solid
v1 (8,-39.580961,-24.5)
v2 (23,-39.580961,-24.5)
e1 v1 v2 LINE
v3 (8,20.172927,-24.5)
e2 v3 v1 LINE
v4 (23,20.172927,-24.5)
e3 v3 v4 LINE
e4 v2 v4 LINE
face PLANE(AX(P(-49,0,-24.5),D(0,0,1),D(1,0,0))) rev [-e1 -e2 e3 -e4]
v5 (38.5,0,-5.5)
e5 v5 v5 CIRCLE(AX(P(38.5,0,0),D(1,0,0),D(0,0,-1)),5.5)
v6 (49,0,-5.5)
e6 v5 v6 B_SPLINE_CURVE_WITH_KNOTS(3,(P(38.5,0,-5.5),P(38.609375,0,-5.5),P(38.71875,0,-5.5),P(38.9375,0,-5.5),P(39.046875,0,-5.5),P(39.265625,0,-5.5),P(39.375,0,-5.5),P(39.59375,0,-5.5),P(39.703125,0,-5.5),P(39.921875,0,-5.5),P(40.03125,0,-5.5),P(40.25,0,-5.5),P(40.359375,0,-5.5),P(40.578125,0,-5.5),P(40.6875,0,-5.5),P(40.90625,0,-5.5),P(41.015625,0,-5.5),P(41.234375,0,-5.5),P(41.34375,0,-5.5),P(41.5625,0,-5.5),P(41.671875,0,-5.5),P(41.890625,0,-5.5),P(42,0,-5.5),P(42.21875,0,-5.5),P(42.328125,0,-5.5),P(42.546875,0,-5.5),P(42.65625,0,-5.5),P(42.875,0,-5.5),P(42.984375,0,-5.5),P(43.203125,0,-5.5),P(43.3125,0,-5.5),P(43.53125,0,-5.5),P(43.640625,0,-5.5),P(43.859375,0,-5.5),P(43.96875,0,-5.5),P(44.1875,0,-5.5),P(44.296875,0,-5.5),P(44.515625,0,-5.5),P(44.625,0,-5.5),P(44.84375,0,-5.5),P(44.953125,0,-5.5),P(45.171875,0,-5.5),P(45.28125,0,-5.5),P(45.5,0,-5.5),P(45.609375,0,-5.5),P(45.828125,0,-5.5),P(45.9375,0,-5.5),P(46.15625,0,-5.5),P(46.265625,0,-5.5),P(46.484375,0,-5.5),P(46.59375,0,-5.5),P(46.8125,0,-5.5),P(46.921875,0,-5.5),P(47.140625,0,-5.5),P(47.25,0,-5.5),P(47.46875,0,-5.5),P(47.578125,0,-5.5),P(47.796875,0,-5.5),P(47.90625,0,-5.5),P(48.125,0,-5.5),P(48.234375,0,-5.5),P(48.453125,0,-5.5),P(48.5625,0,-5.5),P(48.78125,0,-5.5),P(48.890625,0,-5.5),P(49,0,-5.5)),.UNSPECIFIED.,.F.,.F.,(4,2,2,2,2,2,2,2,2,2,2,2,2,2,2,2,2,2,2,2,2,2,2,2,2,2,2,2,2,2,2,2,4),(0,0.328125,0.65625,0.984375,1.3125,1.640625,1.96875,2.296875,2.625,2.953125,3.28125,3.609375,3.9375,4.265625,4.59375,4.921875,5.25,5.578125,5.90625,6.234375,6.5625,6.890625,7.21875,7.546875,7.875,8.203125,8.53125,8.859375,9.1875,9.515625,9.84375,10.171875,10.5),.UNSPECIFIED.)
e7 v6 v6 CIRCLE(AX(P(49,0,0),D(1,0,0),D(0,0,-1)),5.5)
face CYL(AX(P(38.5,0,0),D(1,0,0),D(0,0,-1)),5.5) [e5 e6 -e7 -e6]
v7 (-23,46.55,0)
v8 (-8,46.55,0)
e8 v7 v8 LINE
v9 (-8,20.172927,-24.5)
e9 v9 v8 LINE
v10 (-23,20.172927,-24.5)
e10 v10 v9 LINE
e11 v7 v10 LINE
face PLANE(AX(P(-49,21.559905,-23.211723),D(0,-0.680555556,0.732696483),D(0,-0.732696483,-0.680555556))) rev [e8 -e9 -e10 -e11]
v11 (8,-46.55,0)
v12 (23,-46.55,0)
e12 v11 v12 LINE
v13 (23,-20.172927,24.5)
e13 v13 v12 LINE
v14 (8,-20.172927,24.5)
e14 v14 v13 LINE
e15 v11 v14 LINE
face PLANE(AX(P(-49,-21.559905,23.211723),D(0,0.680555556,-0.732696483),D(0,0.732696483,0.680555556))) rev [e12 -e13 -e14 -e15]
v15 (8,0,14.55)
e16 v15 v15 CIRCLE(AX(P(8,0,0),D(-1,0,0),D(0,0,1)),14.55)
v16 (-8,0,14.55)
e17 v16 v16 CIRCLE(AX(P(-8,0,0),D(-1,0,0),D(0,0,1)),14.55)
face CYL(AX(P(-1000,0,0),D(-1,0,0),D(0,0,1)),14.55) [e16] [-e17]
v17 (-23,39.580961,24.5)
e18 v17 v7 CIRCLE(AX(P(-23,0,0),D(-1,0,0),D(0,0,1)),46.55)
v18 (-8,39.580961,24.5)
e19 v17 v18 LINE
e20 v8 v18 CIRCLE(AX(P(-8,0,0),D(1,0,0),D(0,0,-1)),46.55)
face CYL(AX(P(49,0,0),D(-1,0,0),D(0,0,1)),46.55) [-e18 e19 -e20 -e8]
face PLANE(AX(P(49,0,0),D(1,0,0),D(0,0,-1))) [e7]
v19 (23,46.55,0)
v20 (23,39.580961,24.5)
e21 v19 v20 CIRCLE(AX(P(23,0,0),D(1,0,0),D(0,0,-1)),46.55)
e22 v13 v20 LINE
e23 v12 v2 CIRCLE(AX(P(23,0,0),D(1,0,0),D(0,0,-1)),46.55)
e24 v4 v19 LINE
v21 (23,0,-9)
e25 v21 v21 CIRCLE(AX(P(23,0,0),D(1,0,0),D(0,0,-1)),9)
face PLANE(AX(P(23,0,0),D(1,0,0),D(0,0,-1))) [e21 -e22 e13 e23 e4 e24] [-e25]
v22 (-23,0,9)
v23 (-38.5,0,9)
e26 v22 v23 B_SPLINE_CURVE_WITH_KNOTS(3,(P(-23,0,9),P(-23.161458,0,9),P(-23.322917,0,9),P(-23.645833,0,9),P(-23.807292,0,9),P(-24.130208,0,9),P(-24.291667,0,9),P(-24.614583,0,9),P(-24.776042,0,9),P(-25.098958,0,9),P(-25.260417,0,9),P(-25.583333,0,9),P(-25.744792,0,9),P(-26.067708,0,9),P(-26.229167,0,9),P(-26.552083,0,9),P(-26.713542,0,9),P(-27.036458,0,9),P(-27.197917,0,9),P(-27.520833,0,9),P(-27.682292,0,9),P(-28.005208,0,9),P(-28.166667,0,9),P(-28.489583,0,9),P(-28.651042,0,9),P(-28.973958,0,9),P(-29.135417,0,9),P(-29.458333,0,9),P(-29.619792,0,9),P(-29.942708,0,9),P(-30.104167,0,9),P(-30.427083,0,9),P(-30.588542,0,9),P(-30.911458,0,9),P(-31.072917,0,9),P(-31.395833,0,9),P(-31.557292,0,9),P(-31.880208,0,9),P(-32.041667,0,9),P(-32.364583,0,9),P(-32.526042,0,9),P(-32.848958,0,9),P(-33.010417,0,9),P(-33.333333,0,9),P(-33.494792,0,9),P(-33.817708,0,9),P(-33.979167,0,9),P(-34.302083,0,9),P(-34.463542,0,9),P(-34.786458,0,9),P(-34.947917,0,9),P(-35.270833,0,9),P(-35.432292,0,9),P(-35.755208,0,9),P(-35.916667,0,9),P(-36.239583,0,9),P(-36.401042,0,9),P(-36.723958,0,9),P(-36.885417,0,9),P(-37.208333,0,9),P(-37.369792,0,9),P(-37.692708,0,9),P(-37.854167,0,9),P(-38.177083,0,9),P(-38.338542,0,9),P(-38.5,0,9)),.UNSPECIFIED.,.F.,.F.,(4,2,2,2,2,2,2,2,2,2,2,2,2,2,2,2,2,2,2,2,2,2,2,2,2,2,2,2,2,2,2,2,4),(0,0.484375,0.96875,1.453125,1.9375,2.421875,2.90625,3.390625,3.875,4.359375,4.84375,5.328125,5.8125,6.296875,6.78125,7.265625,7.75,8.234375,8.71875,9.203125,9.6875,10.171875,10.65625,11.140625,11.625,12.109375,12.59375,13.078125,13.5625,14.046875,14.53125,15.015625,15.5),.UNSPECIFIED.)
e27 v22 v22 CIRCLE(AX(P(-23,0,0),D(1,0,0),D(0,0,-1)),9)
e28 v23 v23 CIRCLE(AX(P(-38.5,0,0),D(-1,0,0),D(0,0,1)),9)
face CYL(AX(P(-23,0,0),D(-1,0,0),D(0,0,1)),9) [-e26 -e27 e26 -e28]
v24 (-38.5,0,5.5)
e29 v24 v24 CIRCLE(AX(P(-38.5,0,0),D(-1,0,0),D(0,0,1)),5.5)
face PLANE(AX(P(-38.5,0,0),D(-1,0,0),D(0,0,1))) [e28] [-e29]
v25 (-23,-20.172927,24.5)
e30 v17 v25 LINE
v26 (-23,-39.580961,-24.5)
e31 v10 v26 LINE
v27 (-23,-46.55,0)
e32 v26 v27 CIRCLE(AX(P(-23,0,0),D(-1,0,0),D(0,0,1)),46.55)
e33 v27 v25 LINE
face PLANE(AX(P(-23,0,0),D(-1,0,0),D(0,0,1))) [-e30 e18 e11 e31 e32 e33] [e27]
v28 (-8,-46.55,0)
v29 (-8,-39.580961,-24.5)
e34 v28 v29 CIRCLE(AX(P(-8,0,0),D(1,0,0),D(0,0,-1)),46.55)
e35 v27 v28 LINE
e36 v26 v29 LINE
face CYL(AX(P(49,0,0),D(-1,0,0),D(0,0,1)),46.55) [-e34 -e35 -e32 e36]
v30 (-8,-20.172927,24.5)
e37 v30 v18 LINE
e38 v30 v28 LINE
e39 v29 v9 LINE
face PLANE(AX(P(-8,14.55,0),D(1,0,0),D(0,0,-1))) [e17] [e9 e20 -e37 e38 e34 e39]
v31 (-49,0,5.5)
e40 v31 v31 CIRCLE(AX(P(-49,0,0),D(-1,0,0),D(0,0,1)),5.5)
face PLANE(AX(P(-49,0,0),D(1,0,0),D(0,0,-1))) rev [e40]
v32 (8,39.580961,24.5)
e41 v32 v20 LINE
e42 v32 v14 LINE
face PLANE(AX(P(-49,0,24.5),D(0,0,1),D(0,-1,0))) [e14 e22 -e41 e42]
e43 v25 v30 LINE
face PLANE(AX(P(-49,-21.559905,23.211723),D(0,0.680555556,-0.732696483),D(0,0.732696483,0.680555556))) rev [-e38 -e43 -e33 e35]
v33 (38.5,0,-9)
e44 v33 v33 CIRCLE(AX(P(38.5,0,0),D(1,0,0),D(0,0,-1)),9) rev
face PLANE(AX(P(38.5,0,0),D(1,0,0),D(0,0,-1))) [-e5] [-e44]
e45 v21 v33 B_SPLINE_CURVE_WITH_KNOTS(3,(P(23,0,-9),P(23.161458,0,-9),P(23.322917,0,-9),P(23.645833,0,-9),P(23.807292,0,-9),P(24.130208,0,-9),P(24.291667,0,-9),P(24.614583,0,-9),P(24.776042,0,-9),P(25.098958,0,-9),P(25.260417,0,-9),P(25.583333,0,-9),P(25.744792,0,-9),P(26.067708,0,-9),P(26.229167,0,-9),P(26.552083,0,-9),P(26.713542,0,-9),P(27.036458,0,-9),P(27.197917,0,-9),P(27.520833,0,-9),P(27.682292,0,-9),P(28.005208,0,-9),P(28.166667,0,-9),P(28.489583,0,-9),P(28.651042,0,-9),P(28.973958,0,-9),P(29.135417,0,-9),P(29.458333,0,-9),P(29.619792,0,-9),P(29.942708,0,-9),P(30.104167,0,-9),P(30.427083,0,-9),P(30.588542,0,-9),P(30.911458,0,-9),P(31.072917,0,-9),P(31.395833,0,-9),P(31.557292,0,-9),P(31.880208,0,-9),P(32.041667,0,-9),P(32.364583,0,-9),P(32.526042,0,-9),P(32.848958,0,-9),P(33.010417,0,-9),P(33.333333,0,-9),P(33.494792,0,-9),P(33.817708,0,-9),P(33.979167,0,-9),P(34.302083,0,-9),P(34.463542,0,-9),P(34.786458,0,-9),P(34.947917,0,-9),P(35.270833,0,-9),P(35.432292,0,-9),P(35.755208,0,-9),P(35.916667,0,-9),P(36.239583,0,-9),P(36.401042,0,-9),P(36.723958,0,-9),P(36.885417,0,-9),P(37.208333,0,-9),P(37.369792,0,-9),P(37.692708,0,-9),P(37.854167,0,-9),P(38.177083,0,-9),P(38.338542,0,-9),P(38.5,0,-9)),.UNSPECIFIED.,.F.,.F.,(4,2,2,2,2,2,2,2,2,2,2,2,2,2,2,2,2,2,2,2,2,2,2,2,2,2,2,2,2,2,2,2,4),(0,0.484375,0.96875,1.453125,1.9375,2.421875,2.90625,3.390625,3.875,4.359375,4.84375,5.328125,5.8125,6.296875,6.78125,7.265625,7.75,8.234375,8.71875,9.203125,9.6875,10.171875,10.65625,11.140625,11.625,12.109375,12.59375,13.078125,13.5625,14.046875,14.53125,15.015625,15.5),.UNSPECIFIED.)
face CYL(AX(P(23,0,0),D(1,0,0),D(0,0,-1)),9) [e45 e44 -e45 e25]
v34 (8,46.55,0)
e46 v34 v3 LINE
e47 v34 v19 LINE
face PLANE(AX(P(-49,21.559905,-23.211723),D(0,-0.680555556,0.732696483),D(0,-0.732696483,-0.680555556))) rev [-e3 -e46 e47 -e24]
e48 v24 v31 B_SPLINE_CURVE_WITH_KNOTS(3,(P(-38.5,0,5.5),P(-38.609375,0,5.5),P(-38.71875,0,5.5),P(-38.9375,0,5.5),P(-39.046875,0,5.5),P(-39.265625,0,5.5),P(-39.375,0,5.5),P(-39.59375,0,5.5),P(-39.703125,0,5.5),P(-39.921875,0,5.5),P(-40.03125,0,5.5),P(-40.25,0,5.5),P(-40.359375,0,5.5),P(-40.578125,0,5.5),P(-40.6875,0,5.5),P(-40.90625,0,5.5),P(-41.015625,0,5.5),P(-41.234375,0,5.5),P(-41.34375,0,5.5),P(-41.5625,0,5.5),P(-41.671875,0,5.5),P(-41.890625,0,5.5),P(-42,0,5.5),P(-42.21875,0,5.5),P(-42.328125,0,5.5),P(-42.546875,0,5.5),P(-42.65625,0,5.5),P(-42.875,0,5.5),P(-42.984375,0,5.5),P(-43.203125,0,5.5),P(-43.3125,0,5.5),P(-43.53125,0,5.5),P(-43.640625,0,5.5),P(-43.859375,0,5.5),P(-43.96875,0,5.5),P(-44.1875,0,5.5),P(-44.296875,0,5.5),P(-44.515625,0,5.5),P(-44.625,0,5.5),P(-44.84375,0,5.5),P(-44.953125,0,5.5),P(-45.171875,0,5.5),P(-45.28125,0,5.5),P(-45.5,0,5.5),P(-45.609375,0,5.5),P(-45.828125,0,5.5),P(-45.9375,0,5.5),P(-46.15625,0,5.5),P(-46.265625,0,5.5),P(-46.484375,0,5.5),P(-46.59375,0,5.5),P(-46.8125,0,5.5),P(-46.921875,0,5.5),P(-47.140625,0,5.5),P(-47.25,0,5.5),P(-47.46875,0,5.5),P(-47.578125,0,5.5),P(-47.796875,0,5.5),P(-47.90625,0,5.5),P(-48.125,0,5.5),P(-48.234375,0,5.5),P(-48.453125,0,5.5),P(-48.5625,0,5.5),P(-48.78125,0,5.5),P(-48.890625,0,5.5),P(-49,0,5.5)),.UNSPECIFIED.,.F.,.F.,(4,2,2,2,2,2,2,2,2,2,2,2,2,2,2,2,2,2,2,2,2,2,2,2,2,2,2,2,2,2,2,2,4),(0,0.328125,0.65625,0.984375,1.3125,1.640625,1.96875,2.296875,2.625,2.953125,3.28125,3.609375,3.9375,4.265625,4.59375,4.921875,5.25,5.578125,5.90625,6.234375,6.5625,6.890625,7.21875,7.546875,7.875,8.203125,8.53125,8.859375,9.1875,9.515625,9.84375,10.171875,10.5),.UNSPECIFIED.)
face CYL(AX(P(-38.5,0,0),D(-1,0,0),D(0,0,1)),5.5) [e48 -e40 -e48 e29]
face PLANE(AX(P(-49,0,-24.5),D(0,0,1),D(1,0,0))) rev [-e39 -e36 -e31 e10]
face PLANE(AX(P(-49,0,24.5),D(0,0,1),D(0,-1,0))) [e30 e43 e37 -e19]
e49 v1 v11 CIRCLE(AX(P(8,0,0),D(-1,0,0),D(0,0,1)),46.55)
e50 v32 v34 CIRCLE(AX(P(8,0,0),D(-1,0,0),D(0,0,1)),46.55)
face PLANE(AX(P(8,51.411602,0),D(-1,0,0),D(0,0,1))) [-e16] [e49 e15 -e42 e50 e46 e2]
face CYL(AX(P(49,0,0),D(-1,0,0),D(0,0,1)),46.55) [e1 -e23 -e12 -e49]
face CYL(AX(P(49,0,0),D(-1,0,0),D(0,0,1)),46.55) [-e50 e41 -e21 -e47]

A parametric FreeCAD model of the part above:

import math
import FreeCAD as App
import Part
import Sketcher
Q = App.Units.Quantity


def add_polygon(sketch, points):
    """Adds a closed chain of lines whose ends are joined by coincident constraints."""
    first, n = sketch.GeometryCount, len(points)
    for a, b in zip(points, points[1:] + points[:1]):
        sketch.addGeometry(Part.LineSegment(App.Vector(*a, 0), App.Vector(*b, 0)), False)
    for i in range(n):
        sketch.addConstraint(Sketcher.Constraint("Coincident", first + i, 2, first + (i + 1) % n, 1))

doc = App.newDocument("Part")
body = doc.addObject("PartDesign::Body", "Body")

# Sketch on YZ plane
sketch1 = body.newObject("Sketcher::SketchObject", "Sketch")
sketch1.AttachmentSupport = (doc.getObject("YZ_Plane"), [""])
sketch1.MapMode = "FlatFace"
sketch1.addGeometry(Part.Circle(App.Vector(0, 0, 0), App.Vector(0, 0, 1), 47), False)
sketch1.addConstraint([
    Sketcher.Constraint("Coincident", 0, 3, -1, 1),
    Sketcher.Constraint("Diameter", 0, Q("93.1 mm")),
])
pad1 = body.newObject("PartDesign::Pad", "Pad")
pad1.Profile = sketch1
pad1.Length = 98
pad1.Midplane = True

# Sketch on YZ plane
sketch2 = body.newObject("Sketcher::SketchObject", "Sketch001")
sketch2.AttachmentSupport = (doc.getObject("YZ_Plane"), [""])
sketch2.MapMode = "FlatFace"
sketch2.addGeometry([
    Part.ArcOfCircle(Part.Circle(App.Vector(0, 0, 0), App.Vector(0, 0, 1), 47), math.radians(32), math.radians(148)),  # 0
    Part.ArcOfCircle(Part.Circle(App.Vector(0, 0, 0), App.Vector(0, 0, 1), 47), math.radians(148), math.radians(180)),  # 1
    Part.LineSegment(App.Vector(-47, 0, 0), App.Vector(-20, 24, 0)),  # 2
    Part.LineSegment(App.Vector(-20, 24, 0), App.Vector(40, 24, 0)),  # 3
    Part.ArcOfCircle(Part.Circle(App.Vector(0, 0, 0), App.Vector(0, 0, 1), 47), math.radians(-90), math.radians(-32)),  # 4
    Part.ArcOfCircle(Part.Circle(App.Vector(0, 0, 0), App.Vector(0, 0, 1), 47), math.radians(-32), math.radians(0)),  # 5
    Part.LineSegment(App.Vector(47, 0, 0), App.Vector(20, -24, 0)),  # 6
    Part.LineSegment(App.Vector(20, -24, 0), App.Vector(-40, -24, 0)),  # 7
    Part.ArcOfCircle(Part.Circle(App.Vector(0, 0, 0), App.Vector(0, 0, 1), 47), math.radians(-148), math.radians(-90)),  # 8
], False)
sketch2.addConstraint([
    Sketcher.Constraint("Tangent", 0, 2, 1, 1),
    Sketcher.Constraint("Coincident", 1, 2, 2, 1),
    Sketcher.Constraint("Coincident", 2, 2, 3, 1),
    Sketcher.Constraint("Coincident", 3, 2, 0, 1),
    Sketcher.Constraint("Tangent", 4, 2, 5, 1),
    Sketcher.Constraint("Coincident", 5, 2, 6, 1),
    Sketcher.Constraint("Coincident", 6, 2, 7, 1),
    Sketcher.Constraint("Coincident", 7, 2, 8, 1),
    Sketcher.Constraint("Tangent", 8, 2, 4, 1),
    Sketcher.Constraint("Horizontal", 3),
    Sketcher.Constraint("Horizontal", 7),
    Sketcher.Constraint("Coincident", 0, 3, -1, 1),
    Sketcher.Constraint("Coincident", 4, 3, -1, 1),
    Sketcher.Constraint("Equal", 0, 1),
    Sketcher.Constraint("Equal", 1, 4),
    Sketcher.Constraint("Equal", 4, 5),
    Sketcher.Constraint("Equal", 5, 8),
    Sketcher.Constraint("Symmetric", 2, 2, 6, 2, -1, 1),
    Sketcher.Constraint("PointOnObject", 1, 2, -1),
    Sketcher.Constraint("PointOnObject", 5, 2, -1),
    Sketcher.Constraint("PointOnObject", 8, 2, -2),
    Sketcher.Constraint("Horizontal", 0, 2, 2, 2),
    Sketcher.Constraint("Horizontal", 4, 2, 6, 2),
    Sketcher.Constraint("Radius", 0, Q("46.55 mm")),
    Sketcher.Constraint("Distance", 2, Q("36 mm")),
    Sketcher.Constraint("DistanceY", -1, 1, 0, 2, Q("24.5 mm")),
])
pocket1 = body.newObject("PartDesign::Pocket", "Pocket")
pocket1.Profile = sketch2
pocket1.Type = "ThroughAll"
pocket1.Midplane = True

# Sketch on YZ plane
sketch3 = body.newObject("Sketcher::SketchObject", "Sketch002")
sketch3.AttachmentSupport = (doc.getObject("YZ_Plane"), [""])
sketch3.MapMode = "FlatFace"
sketch3.AttachmentOffset = App.Placement(App.Vector(0, 0, -49), App.Rotation())
add_polygon(sketch3, [(62, 40), (-62, 40), (-62, -40), (62, -40)])  # lines 0-3
sketch3.addGeometry(Part.Circle(App.Vector(0, 0, 0), App.Vector(0, 0, 1), 9), False)  # 4
sketch3.addConstraint([
    Sketcher.Constraint("Horizontal", 0),
    Sketcher.Constraint("Vertical", 1),
    Sketcher.Constraint("Horizontal", 2),
    Sketcher.Constraint("Vertical", 3),
    Sketcher.Constraint("Coincident", 4, 3, -1, 1),
    Sketcher.Constraint("Symmetric", 0, 2, 2, 2, -1, 1),
    Sketcher.Constraint("Diameter", 4, Q("18 mm")),
    Sketcher.Constraint("DistanceX", 0, 2, 0, 1, Q("123.856 mm")),
    Sketcher.Constraint("DistanceY", 1, 2, 1, 1, Q("79.756 mm")),
])
pocket2 = body.newObject("PartDesign::Pocket", "Pocket001")
pocket2.Profile = sketch3
pocket2.Length = 26
pocket2.Reversed = True

# Sketch on YZ plane
sketch4 = body.newObject("Sketcher::SketchObject", "Sketch003")
sketch4.AttachmentSupport = (doc.getObject("YZ_Plane"), [""])
sketch4.MapMode = "FlatFace"
sketch4.AttachmentOffset = App.Placement(App.Vector(0, 0, 49), App.Rotation())
add_polygon(sketch4, [(62, 40), (-62, 40), (-62, -40), (62, -40)])  # lines 0-3
sketch4.addGeometry(Part.Circle(App.Vector(0, 0, 0), App.Vector(0, 0, 1), 9), False)  # 4
sketch4.addConstraint([
    Sketcher.Constraint("Horizontal", 0),
    Sketcher.Constraint("Vertical", 1),
    Sketcher.Constraint("Horizontal", 2),
    Sketcher.Constraint("Vertical", 3),
    Sketcher.Constraint("Coincident", 4, 3, -1, 1),
    Sketcher.Constraint("Symmetric", 0, 2, 2, 2, -1, 1),
    Sketcher.Constraint("Diameter", 4, Q("18 mm")),
    Sketcher.Constraint("DistanceX", 0, 2, 0, 1, Q("123.856 mm")),
    Sketcher.Constraint("DistanceY", 1, 2, 1, 1, Q("79.756 mm")),
])
pocket3 = body.newObject("PartDesign::Pocket", "Pocket002")
pocket3.Profile = sketch4
pocket3.Length = 26

# Sketch on YZ plane
sketch5 = body.newObject("Sketcher::SketchObject", "Sketch004")
sketch5.AttachmentSupport = (doc.getObject("YZ_Plane"), [""])
sketch5.MapMode = "FlatFace"
sketch5.AttachmentOffset = App.Placement(App.Vector(0, 0, 49), App.Rotation())
add_polygon(sketch5, [(62, 40), (-62, 40), (-62, -40), (62, -40)])  # lines 0-3
sketch5.addGeometry(Part.Circle(App.Vector(0, 0, 0), App.Vector(0, 0, 1), 6), False)  # 4
sketch5.addConstraint([
    Sketcher.Constraint("Horizontal", 0),
    Sketcher.Constraint("Vertical", 1),
    Sketcher.Constraint("Horizontal", 2),
    Sketcher.Constraint("Vertical", 3),
    Sketcher.Constraint("Coincident", 4, 3, -1, 1),
    Sketcher.Constraint("Symmetric", 0, 2, 2, 2, -1, 1),
    Sketcher.Constraint("Diameter", 4, Q("11 mm")),
    Sketcher.Constraint("DistanceX", 0, 2, 0, 1, Q("123.856 mm")),
    Sketcher.Constraint("DistanceY", 1, 2, 1, 1, Q("79.756 mm")),
])
pocket4 = body.newObject("PartDesign::Pocket", "Pocket003")
pocket4.Profile = sketch5
pocket4.Length = 10.5

# Sketch on YZ plane
sketch6 = body.newObject("Sketcher::SketchObject", "Sketch005")
sketch6.AttachmentSupport = (doc.getObject("YZ_Plane"), [""])
sketch6.MapMode = "FlatFace"
sketch6.AttachmentOffset = App.Placement(App.Vector(0, 0, -49), App.Rotation())
add_polygon(sketch6, [(62, -40), (-62, -40), (-62, 40), (62, 40)])  # lines 0-3
sketch6.addGeometry(Part.Circle(App.Vector(0, 0, 0), App.Vector(0, 0, 1), 6), False)  # 4
sketch6.addConstraint([
    Sketcher.Constraint("Horizontal", 0),
    Sketcher.Constraint("Vertical", 1),
    Sketcher.Constraint("Horizontal", 2),
    Sketcher.Constraint("Vertical", 3),
    Sketcher.Constraint("Coincident", 4, 3, -1, 1),
    Sketcher.Constraint("Symmetric", 0, 2, 2, 2, -1, 1),
    Sketcher.Constraint("Diameter", 4, Q("11 mm")),
    Sketcher.Constraint("DistanceX", 0, 2, 0, 1, Q("123.856 mm")),
    Sketcher.Constraint("DistanceY", 1, 1, 1, 2, Q("79.756 mm")),
])
pocket5 = body.newObject("PartDesign::Pocket", "Pocket004")
pocket5.Profile = sketch6
pocket5.Length = 10.5
pocket5.Reversed = True

# Sketch on XY plane
sketch7 = body.newObject("Sketcher::SketchObject", "Sketch006")
sketch7.AttachmentSupport = (doc.getObject("XY_Plane"), [""])
sketch7.MapMode = "FlatFace"
add_polygon(sketch7, [(-8, 51), (-8, 15), (8, 15), (8, 51)])  # lines 0-3
sketch7.addConstraint([
    Sketcher.Constraint("Vertical", 0),
    Sketcher.Constraint("Horizontal", 1),
    Sketcher.Constraint("Vertical", 2),
    Sketcher.Constraint("Horizontal", 3),
    Sketcher.Constraint("DistanceX", 1, 1, 1, 2, Q("16 mm")),
    Sketcher.Constraint("DistanceX", 0, 2, -1, 1, Q("8 mm")),
    Sketcher.Constraint("DistanceY", -1, 1, 0, 2, Q("14.55 mm")),
    Sketcher.Constraint("DistanceY", 0, 2, 0, 1, Q("36.861602 mm")),
])
groove = body.newObject("PartDesign::Groove", "Groove")
groove.Profile = sketch7
groove.ReferenceAxis = (sketch7, ["H_Axis"])
groove.Angle = 360

doc.recompute()
